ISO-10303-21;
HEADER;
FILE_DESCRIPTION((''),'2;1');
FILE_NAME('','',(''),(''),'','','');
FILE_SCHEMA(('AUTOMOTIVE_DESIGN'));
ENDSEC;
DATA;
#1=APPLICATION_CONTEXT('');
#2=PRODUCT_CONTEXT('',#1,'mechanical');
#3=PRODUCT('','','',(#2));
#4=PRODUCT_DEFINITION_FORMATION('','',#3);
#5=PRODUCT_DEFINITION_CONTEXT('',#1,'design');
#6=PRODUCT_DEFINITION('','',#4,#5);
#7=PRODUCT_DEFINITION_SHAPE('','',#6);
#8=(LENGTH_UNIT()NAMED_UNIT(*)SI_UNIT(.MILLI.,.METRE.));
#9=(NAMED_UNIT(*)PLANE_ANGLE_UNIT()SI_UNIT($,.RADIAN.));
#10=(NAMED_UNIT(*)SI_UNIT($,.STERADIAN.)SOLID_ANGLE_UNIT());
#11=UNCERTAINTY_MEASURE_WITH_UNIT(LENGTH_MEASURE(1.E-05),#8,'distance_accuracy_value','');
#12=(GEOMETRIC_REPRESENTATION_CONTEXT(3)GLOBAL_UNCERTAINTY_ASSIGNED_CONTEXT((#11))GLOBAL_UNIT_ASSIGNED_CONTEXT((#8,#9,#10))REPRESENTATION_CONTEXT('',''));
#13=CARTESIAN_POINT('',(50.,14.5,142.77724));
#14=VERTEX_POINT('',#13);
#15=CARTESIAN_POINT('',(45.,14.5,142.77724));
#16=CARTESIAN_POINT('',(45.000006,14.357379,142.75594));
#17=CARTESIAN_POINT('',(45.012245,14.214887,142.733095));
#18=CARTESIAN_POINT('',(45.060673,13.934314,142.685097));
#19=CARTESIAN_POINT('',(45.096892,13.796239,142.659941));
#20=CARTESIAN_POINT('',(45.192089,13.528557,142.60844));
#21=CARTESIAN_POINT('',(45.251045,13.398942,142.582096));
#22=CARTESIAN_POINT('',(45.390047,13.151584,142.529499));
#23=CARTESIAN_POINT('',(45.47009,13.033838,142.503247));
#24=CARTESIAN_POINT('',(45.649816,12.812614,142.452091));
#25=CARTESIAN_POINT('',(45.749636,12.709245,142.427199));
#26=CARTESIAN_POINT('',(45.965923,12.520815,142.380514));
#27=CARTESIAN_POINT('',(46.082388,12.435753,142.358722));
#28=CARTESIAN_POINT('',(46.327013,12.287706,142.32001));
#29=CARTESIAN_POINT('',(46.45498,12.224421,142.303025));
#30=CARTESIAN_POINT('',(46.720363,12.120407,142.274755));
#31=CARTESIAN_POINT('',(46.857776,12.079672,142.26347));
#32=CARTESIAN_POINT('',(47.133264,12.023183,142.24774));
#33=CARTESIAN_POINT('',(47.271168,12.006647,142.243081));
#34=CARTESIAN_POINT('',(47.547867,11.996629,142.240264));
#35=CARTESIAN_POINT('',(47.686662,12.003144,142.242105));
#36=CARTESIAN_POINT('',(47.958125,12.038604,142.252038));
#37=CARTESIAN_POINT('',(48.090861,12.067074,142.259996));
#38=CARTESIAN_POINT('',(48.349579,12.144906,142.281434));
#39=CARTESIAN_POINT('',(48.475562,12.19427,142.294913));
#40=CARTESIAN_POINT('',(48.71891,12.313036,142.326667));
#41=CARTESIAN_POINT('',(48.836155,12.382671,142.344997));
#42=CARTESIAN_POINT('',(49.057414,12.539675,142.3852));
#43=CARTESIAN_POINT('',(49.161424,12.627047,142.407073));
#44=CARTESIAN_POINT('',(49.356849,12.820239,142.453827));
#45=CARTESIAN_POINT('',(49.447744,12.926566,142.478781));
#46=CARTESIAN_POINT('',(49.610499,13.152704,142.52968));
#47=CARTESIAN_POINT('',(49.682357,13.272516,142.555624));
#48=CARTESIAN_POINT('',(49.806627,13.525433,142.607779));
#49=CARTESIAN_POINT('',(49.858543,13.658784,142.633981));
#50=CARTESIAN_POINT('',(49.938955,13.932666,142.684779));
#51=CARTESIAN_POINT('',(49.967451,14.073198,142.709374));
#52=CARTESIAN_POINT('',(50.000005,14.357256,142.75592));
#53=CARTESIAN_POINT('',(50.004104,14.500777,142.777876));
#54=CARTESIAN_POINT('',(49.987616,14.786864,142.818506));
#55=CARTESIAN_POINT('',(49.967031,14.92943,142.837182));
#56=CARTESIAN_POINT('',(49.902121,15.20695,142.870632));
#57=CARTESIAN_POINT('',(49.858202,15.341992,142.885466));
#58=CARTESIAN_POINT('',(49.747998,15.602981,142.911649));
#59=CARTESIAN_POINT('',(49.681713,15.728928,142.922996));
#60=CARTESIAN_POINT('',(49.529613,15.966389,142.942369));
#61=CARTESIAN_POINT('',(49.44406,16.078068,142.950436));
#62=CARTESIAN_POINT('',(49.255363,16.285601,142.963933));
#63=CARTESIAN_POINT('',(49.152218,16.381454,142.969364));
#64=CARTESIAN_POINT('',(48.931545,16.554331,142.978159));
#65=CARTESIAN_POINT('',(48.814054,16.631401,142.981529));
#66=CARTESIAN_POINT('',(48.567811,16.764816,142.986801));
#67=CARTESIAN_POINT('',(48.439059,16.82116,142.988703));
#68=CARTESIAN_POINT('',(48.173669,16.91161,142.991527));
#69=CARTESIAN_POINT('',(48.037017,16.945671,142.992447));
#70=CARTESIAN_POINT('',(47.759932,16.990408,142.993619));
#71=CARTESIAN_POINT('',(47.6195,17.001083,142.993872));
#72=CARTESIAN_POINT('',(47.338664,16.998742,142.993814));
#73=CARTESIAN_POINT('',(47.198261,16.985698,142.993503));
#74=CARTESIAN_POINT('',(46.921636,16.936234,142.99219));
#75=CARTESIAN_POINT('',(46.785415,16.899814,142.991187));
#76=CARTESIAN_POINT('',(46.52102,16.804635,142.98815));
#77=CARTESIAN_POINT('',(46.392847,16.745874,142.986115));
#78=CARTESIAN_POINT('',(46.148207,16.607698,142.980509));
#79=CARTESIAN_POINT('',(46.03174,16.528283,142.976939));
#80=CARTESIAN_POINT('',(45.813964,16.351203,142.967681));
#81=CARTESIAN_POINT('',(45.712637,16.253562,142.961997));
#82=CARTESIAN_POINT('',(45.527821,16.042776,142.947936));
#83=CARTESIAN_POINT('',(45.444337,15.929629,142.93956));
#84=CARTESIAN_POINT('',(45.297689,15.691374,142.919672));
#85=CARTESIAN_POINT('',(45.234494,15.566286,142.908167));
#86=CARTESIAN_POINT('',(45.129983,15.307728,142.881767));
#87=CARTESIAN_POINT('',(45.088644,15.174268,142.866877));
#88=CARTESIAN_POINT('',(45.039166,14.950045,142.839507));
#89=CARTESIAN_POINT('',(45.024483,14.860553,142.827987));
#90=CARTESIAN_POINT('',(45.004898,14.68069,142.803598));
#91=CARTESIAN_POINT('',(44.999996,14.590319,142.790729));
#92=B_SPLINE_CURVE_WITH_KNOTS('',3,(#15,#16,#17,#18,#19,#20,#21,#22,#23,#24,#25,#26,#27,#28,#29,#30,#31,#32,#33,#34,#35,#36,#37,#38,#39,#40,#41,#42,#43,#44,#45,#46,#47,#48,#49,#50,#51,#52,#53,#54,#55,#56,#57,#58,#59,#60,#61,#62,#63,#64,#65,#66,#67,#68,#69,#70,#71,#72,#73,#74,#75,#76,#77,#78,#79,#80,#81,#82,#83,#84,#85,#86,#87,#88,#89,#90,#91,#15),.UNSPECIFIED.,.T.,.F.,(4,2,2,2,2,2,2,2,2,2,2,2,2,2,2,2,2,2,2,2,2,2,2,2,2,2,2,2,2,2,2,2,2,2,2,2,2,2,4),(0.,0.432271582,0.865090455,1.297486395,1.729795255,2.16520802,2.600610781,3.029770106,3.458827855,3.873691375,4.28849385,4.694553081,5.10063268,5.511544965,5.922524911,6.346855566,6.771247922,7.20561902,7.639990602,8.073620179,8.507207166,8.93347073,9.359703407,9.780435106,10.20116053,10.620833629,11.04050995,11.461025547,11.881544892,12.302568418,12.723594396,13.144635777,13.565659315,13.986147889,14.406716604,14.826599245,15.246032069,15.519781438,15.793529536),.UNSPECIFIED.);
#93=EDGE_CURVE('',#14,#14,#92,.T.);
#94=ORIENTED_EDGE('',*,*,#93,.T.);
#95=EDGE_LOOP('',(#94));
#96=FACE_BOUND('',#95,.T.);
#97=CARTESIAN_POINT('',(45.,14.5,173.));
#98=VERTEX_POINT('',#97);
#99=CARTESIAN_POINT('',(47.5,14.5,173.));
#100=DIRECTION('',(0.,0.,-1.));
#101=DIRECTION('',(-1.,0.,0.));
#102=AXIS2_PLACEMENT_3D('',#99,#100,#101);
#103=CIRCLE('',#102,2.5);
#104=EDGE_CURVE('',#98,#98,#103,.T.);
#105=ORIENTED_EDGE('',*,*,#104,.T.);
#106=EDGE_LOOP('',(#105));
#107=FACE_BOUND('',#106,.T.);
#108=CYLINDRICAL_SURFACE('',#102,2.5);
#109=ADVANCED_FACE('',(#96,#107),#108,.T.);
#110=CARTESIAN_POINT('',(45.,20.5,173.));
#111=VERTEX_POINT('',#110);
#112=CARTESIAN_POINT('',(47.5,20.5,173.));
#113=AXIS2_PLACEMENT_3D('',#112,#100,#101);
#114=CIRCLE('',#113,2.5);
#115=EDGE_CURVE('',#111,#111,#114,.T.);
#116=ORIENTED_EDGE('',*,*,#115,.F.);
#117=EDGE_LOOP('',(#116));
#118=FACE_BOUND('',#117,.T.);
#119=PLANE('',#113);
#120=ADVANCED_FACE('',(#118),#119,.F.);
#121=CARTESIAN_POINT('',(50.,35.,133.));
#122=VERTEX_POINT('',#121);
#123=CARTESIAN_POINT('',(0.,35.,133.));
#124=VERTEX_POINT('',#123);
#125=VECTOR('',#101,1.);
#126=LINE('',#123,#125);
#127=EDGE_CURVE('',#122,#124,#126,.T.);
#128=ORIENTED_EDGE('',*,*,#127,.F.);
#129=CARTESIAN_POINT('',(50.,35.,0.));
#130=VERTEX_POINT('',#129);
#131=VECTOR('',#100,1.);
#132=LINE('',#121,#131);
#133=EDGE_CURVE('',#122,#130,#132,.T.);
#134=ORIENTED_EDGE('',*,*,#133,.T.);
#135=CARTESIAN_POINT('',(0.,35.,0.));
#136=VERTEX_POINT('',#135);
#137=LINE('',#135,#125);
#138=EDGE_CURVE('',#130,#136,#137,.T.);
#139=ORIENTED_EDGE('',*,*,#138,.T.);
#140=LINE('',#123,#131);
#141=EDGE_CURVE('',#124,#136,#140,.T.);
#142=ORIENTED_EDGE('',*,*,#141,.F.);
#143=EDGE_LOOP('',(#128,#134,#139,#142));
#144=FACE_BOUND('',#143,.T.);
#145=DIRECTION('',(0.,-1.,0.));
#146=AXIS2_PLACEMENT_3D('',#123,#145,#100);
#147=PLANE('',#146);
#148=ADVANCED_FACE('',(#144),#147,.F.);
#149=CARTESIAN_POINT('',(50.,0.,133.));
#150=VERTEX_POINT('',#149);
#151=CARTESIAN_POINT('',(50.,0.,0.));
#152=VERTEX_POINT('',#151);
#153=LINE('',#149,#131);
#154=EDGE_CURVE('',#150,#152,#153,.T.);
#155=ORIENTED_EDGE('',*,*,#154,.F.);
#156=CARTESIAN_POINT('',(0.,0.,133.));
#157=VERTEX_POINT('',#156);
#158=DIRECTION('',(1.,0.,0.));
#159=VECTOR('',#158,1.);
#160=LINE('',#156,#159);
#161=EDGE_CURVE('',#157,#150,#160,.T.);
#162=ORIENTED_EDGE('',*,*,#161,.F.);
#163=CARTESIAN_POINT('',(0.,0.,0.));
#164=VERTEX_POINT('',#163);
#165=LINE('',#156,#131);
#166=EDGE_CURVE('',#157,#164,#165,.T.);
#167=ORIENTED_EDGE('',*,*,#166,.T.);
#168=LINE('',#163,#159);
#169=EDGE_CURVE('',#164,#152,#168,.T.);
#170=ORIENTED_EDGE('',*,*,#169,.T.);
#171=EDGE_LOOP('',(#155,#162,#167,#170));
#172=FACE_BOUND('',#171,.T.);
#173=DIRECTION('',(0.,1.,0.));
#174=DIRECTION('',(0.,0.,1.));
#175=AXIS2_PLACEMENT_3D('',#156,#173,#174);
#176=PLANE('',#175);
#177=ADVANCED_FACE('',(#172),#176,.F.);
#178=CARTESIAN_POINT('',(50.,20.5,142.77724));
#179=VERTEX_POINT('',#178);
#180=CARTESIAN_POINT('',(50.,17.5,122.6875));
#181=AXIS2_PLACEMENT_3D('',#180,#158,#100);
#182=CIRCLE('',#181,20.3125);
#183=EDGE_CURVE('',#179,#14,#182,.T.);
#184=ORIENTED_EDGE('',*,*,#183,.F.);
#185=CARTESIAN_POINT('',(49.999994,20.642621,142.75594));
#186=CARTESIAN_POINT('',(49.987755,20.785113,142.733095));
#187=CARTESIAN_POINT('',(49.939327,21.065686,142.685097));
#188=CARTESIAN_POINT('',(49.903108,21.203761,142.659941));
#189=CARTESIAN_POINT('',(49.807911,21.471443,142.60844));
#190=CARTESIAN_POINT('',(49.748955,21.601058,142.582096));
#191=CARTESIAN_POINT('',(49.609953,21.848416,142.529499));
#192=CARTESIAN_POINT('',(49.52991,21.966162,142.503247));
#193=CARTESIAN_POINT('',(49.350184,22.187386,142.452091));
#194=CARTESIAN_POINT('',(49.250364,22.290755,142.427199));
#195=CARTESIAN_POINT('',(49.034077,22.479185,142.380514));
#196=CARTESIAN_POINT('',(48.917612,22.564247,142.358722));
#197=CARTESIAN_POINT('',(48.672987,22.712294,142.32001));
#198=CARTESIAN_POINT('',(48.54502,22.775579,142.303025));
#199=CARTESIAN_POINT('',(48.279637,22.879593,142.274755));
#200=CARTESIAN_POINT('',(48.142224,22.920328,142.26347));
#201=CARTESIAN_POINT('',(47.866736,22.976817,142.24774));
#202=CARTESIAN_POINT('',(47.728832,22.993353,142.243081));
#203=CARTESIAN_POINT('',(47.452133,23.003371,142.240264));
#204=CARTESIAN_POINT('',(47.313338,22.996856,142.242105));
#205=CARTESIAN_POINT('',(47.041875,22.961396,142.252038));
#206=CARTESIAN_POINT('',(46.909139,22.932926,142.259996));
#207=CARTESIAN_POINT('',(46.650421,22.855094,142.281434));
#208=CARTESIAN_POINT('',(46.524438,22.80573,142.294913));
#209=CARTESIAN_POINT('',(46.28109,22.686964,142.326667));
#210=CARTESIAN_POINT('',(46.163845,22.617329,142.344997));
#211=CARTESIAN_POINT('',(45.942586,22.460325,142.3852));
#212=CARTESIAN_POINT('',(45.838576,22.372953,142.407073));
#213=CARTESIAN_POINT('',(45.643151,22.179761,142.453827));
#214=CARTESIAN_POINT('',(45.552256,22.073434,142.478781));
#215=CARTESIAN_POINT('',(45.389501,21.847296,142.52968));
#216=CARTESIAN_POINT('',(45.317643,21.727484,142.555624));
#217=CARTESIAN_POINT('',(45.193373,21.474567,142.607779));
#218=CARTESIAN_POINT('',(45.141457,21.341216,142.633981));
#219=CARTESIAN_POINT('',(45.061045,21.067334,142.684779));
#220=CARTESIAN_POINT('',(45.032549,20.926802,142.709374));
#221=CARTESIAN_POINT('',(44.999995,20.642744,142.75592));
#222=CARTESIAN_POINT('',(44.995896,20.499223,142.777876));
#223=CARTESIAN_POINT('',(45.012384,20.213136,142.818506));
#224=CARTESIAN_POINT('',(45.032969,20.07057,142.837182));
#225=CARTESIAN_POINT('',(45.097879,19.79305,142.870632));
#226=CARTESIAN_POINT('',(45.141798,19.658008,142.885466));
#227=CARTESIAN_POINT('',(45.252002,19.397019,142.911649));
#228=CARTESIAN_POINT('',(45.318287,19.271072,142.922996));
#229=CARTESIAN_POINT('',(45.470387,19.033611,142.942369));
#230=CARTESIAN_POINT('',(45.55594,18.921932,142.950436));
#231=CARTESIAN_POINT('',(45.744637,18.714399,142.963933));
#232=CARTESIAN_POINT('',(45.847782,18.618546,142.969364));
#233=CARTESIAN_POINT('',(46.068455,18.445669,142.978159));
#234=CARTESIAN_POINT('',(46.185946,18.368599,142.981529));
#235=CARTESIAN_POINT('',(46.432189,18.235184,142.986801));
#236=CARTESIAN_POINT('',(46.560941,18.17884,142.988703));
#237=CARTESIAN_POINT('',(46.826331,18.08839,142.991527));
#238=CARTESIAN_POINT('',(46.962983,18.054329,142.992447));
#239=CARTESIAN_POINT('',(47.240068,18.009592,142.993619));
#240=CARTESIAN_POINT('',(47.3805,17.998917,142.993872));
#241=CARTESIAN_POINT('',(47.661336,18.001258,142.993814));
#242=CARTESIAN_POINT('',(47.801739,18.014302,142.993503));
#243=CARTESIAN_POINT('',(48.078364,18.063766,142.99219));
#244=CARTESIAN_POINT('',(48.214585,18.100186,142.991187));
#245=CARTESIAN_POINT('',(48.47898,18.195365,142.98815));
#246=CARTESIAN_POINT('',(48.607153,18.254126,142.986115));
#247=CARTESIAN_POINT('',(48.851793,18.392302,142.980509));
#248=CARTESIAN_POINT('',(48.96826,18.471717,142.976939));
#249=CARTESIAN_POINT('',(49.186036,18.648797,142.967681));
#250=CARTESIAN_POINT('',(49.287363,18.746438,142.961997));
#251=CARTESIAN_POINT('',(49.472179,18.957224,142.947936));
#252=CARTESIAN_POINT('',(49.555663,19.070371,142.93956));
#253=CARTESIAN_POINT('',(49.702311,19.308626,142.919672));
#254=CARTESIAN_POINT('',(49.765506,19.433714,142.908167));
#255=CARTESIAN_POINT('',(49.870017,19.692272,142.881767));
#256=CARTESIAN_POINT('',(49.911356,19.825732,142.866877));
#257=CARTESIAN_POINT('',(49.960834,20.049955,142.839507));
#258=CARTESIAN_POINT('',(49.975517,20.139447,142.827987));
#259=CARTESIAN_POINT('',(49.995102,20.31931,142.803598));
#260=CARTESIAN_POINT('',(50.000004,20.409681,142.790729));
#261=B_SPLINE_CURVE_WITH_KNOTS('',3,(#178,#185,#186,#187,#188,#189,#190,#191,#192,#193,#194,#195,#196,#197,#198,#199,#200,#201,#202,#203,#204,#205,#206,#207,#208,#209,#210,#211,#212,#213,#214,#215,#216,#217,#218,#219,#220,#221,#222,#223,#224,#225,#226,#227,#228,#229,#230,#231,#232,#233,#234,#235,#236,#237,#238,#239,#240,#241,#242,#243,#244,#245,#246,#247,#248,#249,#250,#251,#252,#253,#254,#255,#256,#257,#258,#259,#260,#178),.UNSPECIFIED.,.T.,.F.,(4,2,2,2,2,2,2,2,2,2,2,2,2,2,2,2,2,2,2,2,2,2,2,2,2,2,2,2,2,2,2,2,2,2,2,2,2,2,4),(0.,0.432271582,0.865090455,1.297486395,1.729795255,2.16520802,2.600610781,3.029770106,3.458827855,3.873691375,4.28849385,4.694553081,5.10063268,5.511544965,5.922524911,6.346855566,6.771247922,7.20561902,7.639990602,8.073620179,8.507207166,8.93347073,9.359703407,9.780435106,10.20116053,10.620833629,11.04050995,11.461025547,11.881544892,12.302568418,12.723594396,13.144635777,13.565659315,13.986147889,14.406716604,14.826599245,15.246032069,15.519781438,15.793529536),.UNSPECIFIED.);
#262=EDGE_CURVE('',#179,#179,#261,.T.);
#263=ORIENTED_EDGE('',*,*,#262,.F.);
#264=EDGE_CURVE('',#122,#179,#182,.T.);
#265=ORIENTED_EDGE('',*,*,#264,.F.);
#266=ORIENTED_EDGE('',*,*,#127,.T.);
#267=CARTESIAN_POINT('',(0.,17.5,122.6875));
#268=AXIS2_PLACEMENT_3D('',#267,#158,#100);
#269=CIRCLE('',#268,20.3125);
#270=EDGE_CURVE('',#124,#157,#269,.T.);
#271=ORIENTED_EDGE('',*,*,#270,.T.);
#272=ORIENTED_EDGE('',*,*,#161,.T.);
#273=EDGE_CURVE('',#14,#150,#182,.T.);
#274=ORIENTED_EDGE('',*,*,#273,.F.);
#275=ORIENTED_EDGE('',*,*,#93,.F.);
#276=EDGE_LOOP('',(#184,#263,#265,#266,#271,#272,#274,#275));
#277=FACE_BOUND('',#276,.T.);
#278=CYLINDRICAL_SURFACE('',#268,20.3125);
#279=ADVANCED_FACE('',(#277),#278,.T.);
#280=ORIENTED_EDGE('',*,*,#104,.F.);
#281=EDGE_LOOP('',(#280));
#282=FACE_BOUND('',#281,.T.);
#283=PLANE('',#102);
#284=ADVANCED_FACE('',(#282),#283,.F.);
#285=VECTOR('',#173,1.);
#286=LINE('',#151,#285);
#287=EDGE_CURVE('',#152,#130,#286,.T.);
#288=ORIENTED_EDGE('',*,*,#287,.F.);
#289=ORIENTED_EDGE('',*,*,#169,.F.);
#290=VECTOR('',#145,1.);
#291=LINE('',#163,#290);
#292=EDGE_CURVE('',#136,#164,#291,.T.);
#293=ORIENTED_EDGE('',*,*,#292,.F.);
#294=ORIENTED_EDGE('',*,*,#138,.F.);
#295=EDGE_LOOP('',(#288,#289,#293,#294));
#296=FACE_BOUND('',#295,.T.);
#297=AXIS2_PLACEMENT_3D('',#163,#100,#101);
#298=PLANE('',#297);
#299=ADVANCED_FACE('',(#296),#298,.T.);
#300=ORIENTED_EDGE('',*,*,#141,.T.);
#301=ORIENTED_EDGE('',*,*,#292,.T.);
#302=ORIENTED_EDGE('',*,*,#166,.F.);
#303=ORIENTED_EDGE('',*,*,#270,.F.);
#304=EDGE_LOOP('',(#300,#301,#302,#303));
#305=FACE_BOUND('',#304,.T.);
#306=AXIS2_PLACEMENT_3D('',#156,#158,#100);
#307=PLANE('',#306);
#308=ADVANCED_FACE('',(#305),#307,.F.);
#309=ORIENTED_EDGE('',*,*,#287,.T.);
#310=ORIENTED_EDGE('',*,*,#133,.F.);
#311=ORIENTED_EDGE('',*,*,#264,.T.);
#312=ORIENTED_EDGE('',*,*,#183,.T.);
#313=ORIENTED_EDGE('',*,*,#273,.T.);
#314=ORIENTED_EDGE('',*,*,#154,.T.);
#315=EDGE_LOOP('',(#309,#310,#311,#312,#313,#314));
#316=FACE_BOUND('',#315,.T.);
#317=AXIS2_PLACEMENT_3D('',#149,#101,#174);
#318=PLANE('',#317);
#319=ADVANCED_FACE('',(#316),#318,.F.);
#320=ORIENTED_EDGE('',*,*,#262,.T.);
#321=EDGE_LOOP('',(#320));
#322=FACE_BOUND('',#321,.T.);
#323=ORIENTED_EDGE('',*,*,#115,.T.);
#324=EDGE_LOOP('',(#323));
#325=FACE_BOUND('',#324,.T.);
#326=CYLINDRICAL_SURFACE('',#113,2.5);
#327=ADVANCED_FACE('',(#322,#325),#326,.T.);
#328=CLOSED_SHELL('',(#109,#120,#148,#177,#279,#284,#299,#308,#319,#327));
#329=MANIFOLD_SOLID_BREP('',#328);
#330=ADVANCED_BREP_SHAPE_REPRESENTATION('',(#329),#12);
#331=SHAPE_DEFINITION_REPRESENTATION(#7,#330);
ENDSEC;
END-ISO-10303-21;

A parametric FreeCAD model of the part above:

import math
import FreeCAD as App
import Part
import Sketcher
from FreeCAD import Vector
Q = App.Units.Quantity


def add_polygon(sketch, points):
    """Adds a closed chain of lines whose ends are joined by coincident constraints."""
    first, n = sketch.GeometryCount, len(points)
    for a, b in zip(points, points[1:] + points[:1]):
        sketch.addGeometry(Part.LineSegment(App.Vector(*a, 0), App.Vector(*b, 0)), False)
    for i in range(n):
        sketch.addConstraint(Sketcher.Constraint("Coincident", first + i, 2, first + (i + 1) % n, 1))

doc = App.newDocument("Part")
params = doc.addObject("Spreadsheet::Sheet", "Params")
for row, (alias, value) in enumerate([
    ("sketch1_width", "50 mm"),
    ("sketch1_height", "35 mm"),
    ("pad1_length", "133 mm"),
    ("sketch2_width", "35 mm"),
    ("pad2_length", "50 mm"),
    ("sketch3_diameter", "5 mm"),
    ("pad3_length", "173 mm"),
], start=1):
    params.set(f"A{row}", alias)
    params.set(f"B{row}", "=" + value)
    params.setAlias(f"B{row}", alias)

body = doc.addObject("PartDesign::Body", "Body")

# Sketch on XY plane
sketch1 = body.newObject("Sketcher::SketchObject", "Sketch")
sketch1.AttachmentSupport = (doc.getObject("XY_Plane"), [""])
sketch1.MapMode = "FlatFace"
add_polygon(sketch1, [(0, 35), (0, 0), (50, 0), (50, 35)])  # lines 0-3
sketch1.addConstraint(Sketcher.Constraint("Vertical", 0))
sketch1.addConstraint(Sketcher.Constraint("Horizontal", 1))
sketch1.addConstraint(Sketcher.Constraint("Vertical", 2))
sketch1.addConstraint(Sketcher.Constraint("Horizontal", 3))
sketch1.addConstraint(Sketcher.Constraint("Coincident", 0, 2, -1, 1))
sketch1.addConstraint(Sketcher.Constraint("DistanceX", 1, 1, 1, 2, Q("50 mm")))
sketch1.addConstraint(Sketcher.Constraint("DistanceY", 0, 2, 0, 1, Q("35 mm")))
sketch1.setExpression("Constraints[9]", "Params.sketch1_width")
sketch1.setExpression("Constraints[10]", "Params.sketch1_height")
pad1 = body.newObject("PartDesign::Pad", "Pad")
pad1.Profile = sketch1
pad1.setExpression("Length", "Params.pad1_length")

# Sketch on YZ plane
sketch2 = body.newObject("Sketcher::SketchObject", "Sketch001")
sketch2.AttachmentSupport = (doc.getObject("YZ_Plane"), [""])
sketch2.MapMode = "FlatFace"
sketch2.AttachmentOffset = App.Placement(Vector(0, 0, 50), App.Rotation())
sketch2.addGeometry(Part.LineSegment(Vector(0, 133, 0), Vector(35, 133, 0)), False)
sketch2.addGeometry(Part.ArcOfCircle(Part.Circle(Vector(18, 123, 0), Vector(0, 0, 1), 20), math.radians(31), math.radians(149)), False)
sketch2.addConstraint(Sketcher.Constraint("Coincident", 0, 1, 1, 2))
sketch2.addConstraint(Sketcher.Constraint("Coincident", 1, 1, 0, 2))
sketch2.addConstraint(Sketcher.Constraint("Horizontal", 0))
sketch2.addConstraint(Sketcher.Constraint("PointOnObject", 0, 1, -2))
sketch2.addConstraint(Sketcher.Constraint("DistanceX", 0, 1, 0, 2, Q("35 mm")))
sketch2.addConstraint(Sketcher.Constraint("DistanceY", -1, 1, 0, 1, Q("133 mm")))
sketch2.addConstraint(Sketcher.Constraint("Radius", 1, Q("20.3125 mm")))
sketch2.setExpression("Constraints[4]", "Params.sketch2_width")
pad2 = body.newObject("PartDesign::Pad", "Pad001")
pad2.Profile = sketch2
pad2.setExpression("Length", "Params.pad2_length")
pad2.Reversed = True

# Sketch on XY plane
sketch3 = body.newObject("Sketcher::SketchObject", "Sketch002")
sketch3.AttachmentSupport = (doc.getObject("XY_Plane"), [""])
sketch3.MapMode = "FlatFace"
sketch3.addGeometry(Part.Circle(Vector(47.5, 20.5, 0), Vector(0, 0, 1), 2.5), False)
sketch3.addGeometry(Part.Circle(Vector(47.5, 14.5, 0), Vector(0, 0, 1), 2.5), False)
sketch3.addConstraint(Sketcher.Constraint("Equal", 0, 1))
sketch3.addConstraint(Sketcher.Constraint("Vertical", 0, 3, 1, 3))
sketch3.addConstraint(Sketcher.Constraint("Diameter", 0, Q("5 mm")))
sketch3.addConstraint(Sketcher.Constraint("DistanceY", 1, 3, 0, 3, Q("6 mm")))
sketch3.addConstraint(Sketcher.Constraint("DistanceX", -1, 1, 0, 3, Q("47.5 mm")))
sketch3.addConstraint(Sketcher.Constraint("DistanceY", -1, 1, 0, 3, Q("20.5 mm")))
sketch3.setExpression("Constraints[2]", "Params.sketch3_diameter")
pad3 = body.newObject("PartDesign::Pad", "Pad002")
pad3.Profile = sketch3
pad3.setExpression("Length", "Params.pad3_length")

doc.recompute()
